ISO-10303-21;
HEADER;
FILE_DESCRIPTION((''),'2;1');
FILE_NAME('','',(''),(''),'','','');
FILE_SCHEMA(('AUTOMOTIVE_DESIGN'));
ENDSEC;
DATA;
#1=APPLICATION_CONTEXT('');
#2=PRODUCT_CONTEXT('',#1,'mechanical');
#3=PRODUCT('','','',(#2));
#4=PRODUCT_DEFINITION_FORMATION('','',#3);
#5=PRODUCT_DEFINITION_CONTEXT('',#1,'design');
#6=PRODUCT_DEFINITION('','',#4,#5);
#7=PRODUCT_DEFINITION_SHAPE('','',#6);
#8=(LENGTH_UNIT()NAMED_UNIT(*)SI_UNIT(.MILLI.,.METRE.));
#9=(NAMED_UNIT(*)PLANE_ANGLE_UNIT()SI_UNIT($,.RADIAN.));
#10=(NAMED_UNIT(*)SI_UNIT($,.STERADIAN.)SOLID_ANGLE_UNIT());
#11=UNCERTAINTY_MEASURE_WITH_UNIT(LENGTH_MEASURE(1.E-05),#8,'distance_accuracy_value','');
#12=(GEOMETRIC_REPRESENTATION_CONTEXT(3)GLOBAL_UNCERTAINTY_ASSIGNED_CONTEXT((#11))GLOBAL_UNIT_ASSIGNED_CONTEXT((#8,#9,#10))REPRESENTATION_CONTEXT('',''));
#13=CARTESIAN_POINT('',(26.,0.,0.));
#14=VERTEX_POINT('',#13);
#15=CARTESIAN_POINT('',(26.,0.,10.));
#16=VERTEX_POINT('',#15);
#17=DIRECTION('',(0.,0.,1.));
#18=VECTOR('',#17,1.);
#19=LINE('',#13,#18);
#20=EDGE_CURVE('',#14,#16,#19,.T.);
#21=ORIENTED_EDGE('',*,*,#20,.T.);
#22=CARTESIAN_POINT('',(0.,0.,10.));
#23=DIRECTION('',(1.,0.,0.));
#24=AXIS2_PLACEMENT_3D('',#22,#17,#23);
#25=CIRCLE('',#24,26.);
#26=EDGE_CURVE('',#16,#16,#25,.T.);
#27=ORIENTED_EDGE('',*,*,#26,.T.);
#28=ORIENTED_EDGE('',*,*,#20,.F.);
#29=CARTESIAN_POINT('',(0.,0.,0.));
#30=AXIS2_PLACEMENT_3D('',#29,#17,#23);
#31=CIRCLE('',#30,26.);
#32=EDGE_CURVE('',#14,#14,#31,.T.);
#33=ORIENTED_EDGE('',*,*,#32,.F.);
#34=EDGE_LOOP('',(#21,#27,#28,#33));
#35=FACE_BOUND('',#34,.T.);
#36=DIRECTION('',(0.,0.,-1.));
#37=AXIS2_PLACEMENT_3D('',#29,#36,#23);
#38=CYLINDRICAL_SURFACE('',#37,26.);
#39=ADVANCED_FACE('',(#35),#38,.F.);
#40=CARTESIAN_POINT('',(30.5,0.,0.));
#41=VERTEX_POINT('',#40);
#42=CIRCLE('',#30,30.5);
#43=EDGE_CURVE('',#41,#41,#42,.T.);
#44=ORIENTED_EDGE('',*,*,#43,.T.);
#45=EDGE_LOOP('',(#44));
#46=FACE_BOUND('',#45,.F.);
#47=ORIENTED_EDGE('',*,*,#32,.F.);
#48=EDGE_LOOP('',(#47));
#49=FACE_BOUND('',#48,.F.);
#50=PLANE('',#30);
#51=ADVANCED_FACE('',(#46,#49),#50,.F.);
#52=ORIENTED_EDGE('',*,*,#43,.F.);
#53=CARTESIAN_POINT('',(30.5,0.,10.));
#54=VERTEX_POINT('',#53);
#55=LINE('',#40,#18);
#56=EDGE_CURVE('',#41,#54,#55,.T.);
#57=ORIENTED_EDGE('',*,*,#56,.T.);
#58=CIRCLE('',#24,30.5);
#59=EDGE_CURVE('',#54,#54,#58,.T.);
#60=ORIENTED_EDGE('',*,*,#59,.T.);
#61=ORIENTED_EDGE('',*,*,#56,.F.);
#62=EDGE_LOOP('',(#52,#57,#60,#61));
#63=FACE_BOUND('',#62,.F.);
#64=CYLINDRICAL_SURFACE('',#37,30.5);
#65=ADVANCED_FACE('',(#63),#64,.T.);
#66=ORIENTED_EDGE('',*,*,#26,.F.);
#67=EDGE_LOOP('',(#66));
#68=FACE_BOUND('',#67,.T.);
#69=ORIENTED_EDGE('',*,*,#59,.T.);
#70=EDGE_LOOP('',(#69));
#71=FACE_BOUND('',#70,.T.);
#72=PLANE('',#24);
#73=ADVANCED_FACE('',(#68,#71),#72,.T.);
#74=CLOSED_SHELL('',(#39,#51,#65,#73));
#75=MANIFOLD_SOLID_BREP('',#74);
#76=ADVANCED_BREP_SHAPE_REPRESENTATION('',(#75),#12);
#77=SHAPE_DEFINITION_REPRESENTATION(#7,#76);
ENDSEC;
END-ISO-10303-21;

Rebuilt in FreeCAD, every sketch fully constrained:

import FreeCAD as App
import Part
import Sketcher

V = App.Vector
Q = App.Units.Quantity

doc = App.newDocument("Part")
body = doc.addObject("PartDesign::Body", "Body")

# Sketch on XY plane
sketch1 = body.newObject("Sketcher::SketchObject", "Sketch")
sketch1.AttachmentSupport = (doc.getObject("XY_Plane"), [""])
sketch1.MapMode = "FlatFace"
sketch1.addGeometry([
    Part.Circle(V(0, 0, 0), V(0, 0, 1), 40),
    Part.Circle(V(0, 0, 0), V(0, 0, 1), 36),
], False)
sketch1.addConstraint([
    Sketcher.Constraint("Coincident", 0, 3, -1, 1),
    Sketcher.Constraint("Coincident", 1, 3, -1, 1),
    Sketcher.Constraint("Diameter", 0, Q("80 mm")),
    Sketcher.Constraint("Diameter", 1, Q("71 mm")),
])
pad1 = body.newObject("PartDesign::Pad", "Pad")
pad1.Profile = sketch1
pad1.Length = 10
body2 = doc.addObject("PartDesign::Body", "Body001")

# Sketch on XY plane
sketch2 = body2.newObject("Sketcher::SketchObject", "Sketch001")
sketch2.AttachmentSupport = (doc.getObject("XY_Plane001"), [""])
sketch2.MapMode = "FlatFace"
sketch2.addGeometry([
    Part.Circle(V(0, 0, 0), V(0, 0, 1), 30),
    Part.Circle(V(0, 0, 0), V(0, 0, 1), 26),
], False)
sketch2.addConstraint([
    Sketcher.Constraint("Coincident", 0, 3, -1, 1),
    Sketcher.Constraint("Coincident", 1, 3, -1, 1),
    Sketcher.Constraint("Diameter", 0, Q("61 mm")),
    Sketcher.Constraint("Diameter", 1, Q("52 mm")),
])
pad2 = body2.newObject("PartDesign::Pad", "Pad001")
pad2.Profile = sketch2
pad2.Length = 10
body.Visibility = False

doc.recompute()
